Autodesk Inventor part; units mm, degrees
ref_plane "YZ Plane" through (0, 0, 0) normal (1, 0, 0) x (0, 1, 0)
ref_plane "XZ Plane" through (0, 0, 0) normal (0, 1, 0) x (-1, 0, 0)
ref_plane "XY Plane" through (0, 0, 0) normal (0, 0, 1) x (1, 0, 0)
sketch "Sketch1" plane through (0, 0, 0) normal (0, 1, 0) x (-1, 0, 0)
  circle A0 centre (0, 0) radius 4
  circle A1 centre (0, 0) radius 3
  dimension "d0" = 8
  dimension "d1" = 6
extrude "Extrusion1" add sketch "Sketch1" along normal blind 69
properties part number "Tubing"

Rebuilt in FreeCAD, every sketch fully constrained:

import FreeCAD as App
import Part
import Sketcher

doc = App.newDocument("Part")
body = doc.addObject("PartDesign::Body", "Body")

sketch1 = body.newObject("Sketcher::SketchObject", "Sketch")
sketch1.AttachmentSupport = (doc.getObject("XZ_Plane"), [""])
sketch1.MapMode = "FlatFace"
sketch1.addGeometry([
    Part.Circle(App.Vector(0, 0, 0), App.Vector(0, 0, 1), 4),
    Part.Circle(App.Vector(0, 0, 0), App.Vector(0, 0, 1), 3),
], False)
sketch1.addConstraint([
    Sketcher.Constraint("Coincident", 0, 3, -1, 1),
    Sketcher.Constraint("Coincident", 1, 3, -1, 1),
    Sketcher.Constraint("Diameter", 0, 8.0),
    Sketcher.Constraint("Diameter", 1, 6.0),
])
pad1 = body.newObject("PartDesign::Pad", "Pad")
pad1.Profile = sketch1
pad1.Length = 69
pad1.Reversed = True

doc.recompute()
